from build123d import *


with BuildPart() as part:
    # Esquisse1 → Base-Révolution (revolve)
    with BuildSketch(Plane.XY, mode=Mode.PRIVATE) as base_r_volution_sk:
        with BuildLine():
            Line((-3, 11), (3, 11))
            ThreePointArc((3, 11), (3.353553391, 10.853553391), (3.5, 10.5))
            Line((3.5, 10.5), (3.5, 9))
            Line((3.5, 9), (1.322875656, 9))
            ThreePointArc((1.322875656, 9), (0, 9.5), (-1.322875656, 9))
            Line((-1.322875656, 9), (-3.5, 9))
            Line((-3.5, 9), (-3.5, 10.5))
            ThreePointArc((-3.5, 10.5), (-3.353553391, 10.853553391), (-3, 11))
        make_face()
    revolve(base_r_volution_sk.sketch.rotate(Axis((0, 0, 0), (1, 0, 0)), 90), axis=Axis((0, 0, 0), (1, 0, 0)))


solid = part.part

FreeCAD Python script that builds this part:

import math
import FreeCAD as App
import Part
import Sketcher

V = App.Vector
Q = App.Units.Quantity

doc = App.newDocument("Part")
body = doc.addObject("PartDesign::Body", "Body")

# Sketch on XY plane
sketch1 = doc.addObject("Sketcher::SketchObject", "Sketch")
body.addObject(sketch1)
sketch1.AttachmentSupport = (doc.XY_Plane, [""])
sketch1.MapMode = "FlatFace"
sketch1.addGeometry([
    Part.LineSegment(V(3, 11, 0), V(-3, 11, 0)),  # 0
    Part.ArcOfCircle(Part.Circle(V(-3, 10.5, 0), V(0, 0, 1), 0.5), math.radians(90), math.radians(180)),  # 1
    Part.LineSegment(V(-3.5, 10.5, 0), V(-3.5, 9, 0)),  # 2
    Part.LineSegment(V(-3.5, 9, 0), V(-1.322876, 9, 0)),  # 3
    Part.ArcOfCircle(Part.Circle(V(0, 7.5, 0), V(0, 0, 1), 2), math.radians(48.590378), math.radians(131.409622)),  # 4
    Part.LineSegment(V(1.322876, 9, 0), V(3.5, 9, 0)),  # 5
    Part.LineSegment(V(3.5, 9, 0), V(3.5, 10.5, 0)),  # 6
    Part.ArcOfCircle(Part.Circle(V(3, 10.5, 0), V(0, 0, 1), 0.5), math.radians(0), math.radians(90)),  # 7
], False)
sketch1.addConstraint([
    Sketcher.Constraint("Tangent", 0, 2, 1, 1),
    Sketcher.Constraint("Tangent", 1, 2, 2, 1),
    Sketcher.Constraint("Coincident", 2, 2, 3, 1),
    Sketcher.Constraint("Coincident", 3, 2, 4, 2),
    Sketcher.Constraint("Coincident", 4, 1, 5, 1),
    Sketcher.Constraint("Coincident", 5, 2, 6, 1),
    Sketcher.Constraint("Tangent", 6, 2, 7, 1),
    Sketcher.Constraint("Tangent", 7, 2, 0, 1),
    Sketcher.Constraint("Horizontal", 0),
    Sketcher.Constraint("Vertical", 2),
    Sketcher.Constraint("Horizontal", 3),
    Sketcher.Constraint("Horizontal", 5),
    Sketcher.Constraint("Vertical", 6),
    Sketcher.Constraint("Equal", 1, 7),
    Sketcher.Constraint("Symmetric", 3, 2, 4, 1, -2),
    Sketcher.Constraint("Equal", 3, 5),
    Sketcher.Constraint("Radius", 4, Q("2 mm")),
    Sketcher.Constraint("Radius", 1, Q("0.5 mm")),
    Sketcher.Constraint("DistanceX", 0, 2, 0, 1, Q("6 mm")),
    Sketcher.Constraint("DistanceY", 2, 2, 2, 1, Q("1.5 mm")),
    Sketcher.Constraint("DistanceY", -1, 1, 0, 2, Q("11 mm")),
    Sketcher.Constraint("DistanceY", 4, 3, 1, 3, Q("3 mm")),
])
revolution = doc.addObject("PartDesign::Revolution", "Revolution")
body.addObject(revolution)
revolution.Profile = sketch1
revolution.ReferenceAxis = (sketch1, ["H_Axis"])
revolution.Angle = 360

doc.recompute()
